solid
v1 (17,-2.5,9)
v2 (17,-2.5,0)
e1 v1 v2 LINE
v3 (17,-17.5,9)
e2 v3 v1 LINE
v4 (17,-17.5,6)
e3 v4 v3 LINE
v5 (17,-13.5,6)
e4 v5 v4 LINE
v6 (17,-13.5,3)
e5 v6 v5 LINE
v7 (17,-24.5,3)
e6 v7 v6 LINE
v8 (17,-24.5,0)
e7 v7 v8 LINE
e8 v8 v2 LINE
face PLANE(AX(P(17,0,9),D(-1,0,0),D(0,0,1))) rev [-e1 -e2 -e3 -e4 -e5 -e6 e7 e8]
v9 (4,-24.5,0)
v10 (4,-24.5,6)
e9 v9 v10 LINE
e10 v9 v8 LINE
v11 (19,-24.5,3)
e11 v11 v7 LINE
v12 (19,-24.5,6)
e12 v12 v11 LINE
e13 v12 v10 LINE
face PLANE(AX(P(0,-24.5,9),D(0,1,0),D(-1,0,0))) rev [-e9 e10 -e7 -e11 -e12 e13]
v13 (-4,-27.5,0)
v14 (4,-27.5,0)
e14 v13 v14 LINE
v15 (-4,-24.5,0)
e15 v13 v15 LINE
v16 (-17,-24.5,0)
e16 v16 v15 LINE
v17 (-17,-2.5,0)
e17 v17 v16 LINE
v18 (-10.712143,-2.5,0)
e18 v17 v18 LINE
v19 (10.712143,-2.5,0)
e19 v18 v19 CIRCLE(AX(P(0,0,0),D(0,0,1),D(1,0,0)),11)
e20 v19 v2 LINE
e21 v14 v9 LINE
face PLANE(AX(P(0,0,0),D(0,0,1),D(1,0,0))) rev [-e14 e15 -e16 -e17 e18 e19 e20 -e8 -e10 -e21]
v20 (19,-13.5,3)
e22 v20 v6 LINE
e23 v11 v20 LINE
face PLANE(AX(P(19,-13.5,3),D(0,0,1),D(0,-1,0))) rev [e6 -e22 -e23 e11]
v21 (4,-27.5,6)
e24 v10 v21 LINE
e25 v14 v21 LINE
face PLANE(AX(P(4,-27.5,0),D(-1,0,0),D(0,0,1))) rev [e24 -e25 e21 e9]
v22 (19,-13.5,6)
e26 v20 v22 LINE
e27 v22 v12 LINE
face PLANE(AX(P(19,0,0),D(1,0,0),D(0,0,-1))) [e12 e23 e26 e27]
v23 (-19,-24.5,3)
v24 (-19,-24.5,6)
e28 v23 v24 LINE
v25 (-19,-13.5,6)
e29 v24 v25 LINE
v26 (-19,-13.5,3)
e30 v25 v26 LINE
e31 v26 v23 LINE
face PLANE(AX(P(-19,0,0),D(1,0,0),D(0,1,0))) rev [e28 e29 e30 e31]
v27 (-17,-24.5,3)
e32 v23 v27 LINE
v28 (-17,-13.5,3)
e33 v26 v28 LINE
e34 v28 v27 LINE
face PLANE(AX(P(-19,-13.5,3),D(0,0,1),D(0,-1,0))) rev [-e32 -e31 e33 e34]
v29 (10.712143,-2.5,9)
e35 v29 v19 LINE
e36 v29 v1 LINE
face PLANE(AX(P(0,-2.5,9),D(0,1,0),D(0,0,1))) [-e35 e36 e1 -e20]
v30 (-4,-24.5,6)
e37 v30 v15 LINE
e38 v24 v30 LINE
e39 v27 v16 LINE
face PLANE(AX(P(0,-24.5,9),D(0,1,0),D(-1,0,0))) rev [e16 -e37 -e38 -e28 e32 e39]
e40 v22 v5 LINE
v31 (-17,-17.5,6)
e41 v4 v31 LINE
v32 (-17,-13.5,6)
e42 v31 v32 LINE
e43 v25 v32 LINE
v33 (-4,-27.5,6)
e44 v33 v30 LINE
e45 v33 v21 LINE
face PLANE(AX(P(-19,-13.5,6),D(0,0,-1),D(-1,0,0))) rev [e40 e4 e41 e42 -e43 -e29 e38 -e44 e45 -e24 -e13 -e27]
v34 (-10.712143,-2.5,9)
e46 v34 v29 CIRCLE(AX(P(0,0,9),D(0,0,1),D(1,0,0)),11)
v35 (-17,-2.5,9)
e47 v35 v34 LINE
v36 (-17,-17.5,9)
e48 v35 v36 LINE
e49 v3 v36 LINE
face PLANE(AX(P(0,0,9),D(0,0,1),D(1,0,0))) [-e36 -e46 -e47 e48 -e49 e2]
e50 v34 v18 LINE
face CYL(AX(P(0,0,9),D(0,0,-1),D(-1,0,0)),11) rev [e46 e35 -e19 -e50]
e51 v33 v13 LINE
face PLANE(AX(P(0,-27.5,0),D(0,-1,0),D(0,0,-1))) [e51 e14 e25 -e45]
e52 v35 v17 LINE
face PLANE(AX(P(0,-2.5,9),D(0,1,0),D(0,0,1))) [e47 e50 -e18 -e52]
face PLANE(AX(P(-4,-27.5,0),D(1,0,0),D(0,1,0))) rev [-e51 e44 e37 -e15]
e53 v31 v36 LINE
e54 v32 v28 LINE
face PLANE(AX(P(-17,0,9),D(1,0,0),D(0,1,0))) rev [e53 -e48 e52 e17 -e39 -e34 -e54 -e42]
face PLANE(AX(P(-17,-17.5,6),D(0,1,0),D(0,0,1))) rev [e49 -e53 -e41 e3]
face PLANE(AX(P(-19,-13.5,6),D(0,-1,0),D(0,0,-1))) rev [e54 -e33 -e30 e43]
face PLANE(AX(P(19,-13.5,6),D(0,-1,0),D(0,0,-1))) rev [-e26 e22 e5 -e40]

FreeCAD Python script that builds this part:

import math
import FreeCAD as App
import Part
import Sketcher
from FreeCAD import Vector

doc = App.newDocument("Part")
body = doc.addObject("PartDesign::Body", "Body")

sketch1 = body.newObject("Sketcher::SketchObject", "Sketch")
sketch1.AttachmentSupport = (doc.getObject("XY_Plane"), [""])
sketch1.MapMode = "FlatFace"
sketch1.addGeometry([
    Part.LineSegment(Vector(-11, -2, 0), Vector(-17, -2, 0)),
    Part.LineSegment(Vector(-17, -2, 0), Vector(-17, -24, 0)),
    Part.LineSegment(Vector(-17, -24, 0), Vector(17, -24, 0)),
    Part.LineSegment(Vector(17, -24, 0), Vector(17, -2, 0)),
    Part.LineSegment(Vector(17, -2, 0), Vector(11, -2, 0)),
    Part.ArcOfCircle(Part.Circle(Vector(0, 0, 0), Vector(0, 0, 1), 11), math.radians(-167), math.radians(-13)),
], False)
sketch1.addConstraint([
    Sketcher.Constraint("Coincident", 0, 2, 1, 1),
    Sketcher.Constraint("Coincident", 1, 2, 2, 1),
    Sketcher.Constraint("Coincident", 2, 2, 3, 1),
    Sketcher.Constraint("Coincident", 3, 2, 4, 1),
    Sketcher.Constraint("Coincident", 4, 2, 5, 2),
    Sketcher.Constraint("Coincident", 5, 1, 0, 1),
    Sketcher.Constraint("Horizontal", 0),
    Sketcher.Constraint("Vertical", 1),
    Sketcher.Constraint("Horizontal", 2),
    Sketcher.Constraint("Vertical", 3),
    Sketcher.Constraint("Horizontal", 4),
    Sketcher.Constraint("Coincident", 5, 3, -1, 1),
    Sketcher.Constraint("Symmetric", 0, 2, 3, 2, -2),
    Sketcher.Constraint("Radius", 5, 11.0),
    Sketcher.Constraint("DistanceX", 2, 1, 2, 2, 34.0),
    Sketcher.Constraint("DistanceY", 1, 2, 1, 1, 22.0),
    Sketcher.Constraint("DistanceY", 0, 2, -1, 1, 2.5),
])
pad1 = body.newObject("PartDesign::Pad", "Pad")
pad1.Profile = sketch1
pad1.Length = 9

sketch2 = body.newObject("Sketcher::SketchObject", "Sketch001")
sketch2.AttachmentSupport = (doc.getObject("XZ_Plane"), [""])
sketch2.MapMode = "FlatFace"
sketch2.AttachmentOffset = App.Placement(Vector(0, 0, 24.5), App.Rotation())
sketch2.addGeometry([
    Part.LineSegment(Vector(-4, 9, 0), Vector(-4, 0, 0)),
    Part.LineSegment(Vector(-4, 0, 0), Vector(4, 0, 0)),
    Part.LineSegment(Vector(4, 0, 0), Vector(4, 9, 0)),
    Part.LineSegment(Vector(4, 9, 0), Vector(-4, 9, 0)),
], False)
sketch2.addConstraint([
    Sketcher.Constraint("Coincident", 0, 2, 1, 1),
    Sketcher.Constraint("Coincident", 1, 2, 2, 1),
    Sketcher.Constraint("Coincident", 2, 2, 3, 1),
    Sketcher.Constraint("Coincident", 3, 2, 0, 1),
    Sketcher.Constraint("Vertical", 0),
    Sketcher.Constraint("Horizontal", 1),
    Sketcher.Constraint("Vertical", 2),
    Sketcher.Constraint("Horizontal", 3),
    Sketcher.Constraint("Symmetric", 0, 2, 1, 2, -1, 1),
    Sketcher.Constraint("DistanceX", 1, 1, 1, 2, 8.0),
    Sketcher.Constraint("DistanceY", 0, 2, 0, 1, 9.0),
])
pad2 = body.newObject("PartDesign::Pad", "Pad001")
pad2.Profile = sketch2
pad2.Length = 3

sketch3 = body.newObject("Sketcher::SketchObject", "Sketch002")
sketch3.AttachmentSupport = (doc.getObject("YZ_Plane"), [""])
sketch3.MapMode = "FlatFace"
sketch3.AttachmentOffset = App.Placement(Vector(0, 0, -17), App.Rotation())
sketch3.addGeometry([
    Part.LineSegment(Vector(-13.5, 3, 0), Vector(-24.5, 3, 0)),
    Part.LineSegment(Vector(-24.5, 3, 0), Vector(-24.5, 6, 0)),
    Part.LineSegment(Vector(-24.5, 6, 0), Vector(-13.5, 6, 0)),
    Part.LineSegment(Vector(-13.5, 6, 0), Vector(-13.5, 3, 0)),
], False)
sketch3.addConstraint([
    Sketcher.Constraint("Coincident", 0, 2, 1, 1),
    Sketcher.Constraint("Coincident", 1, 2, 2, 1),
    Sketcher.Constraint("Coincident", 2, 2, 3, 1),
    Sketcher.Constraint("Coincident", 3, 2, 0, 1),
    Sketcher.Constraint("Horizontal", 0),
    Sketcher.Constraint("Vertical", 1),
    Sketcher.Constraint("Horizontal", 2),
    Sketcher.Constraint("Vertical", 3),
    Sketcher.Constraint("DistanceX", 0, 2, 0, 1, 11.0),
    Sketcher.Constraint("DistanceY", 1, 1, 1, 2, 3.0),
    Sketcher.Constraint("DistanceY", -1, 1, 0, 2, 3.0),
    Sketcher.Constraint("DistanceX", 0, 2, -1, 1, 24.5),
])
pad3 = body.newObject("PartDesign::Pad", "Pad002")
pad3.Profile = sketch3
pad3.Length = 2
pad3.Reversed = True

sketch4 = body.newObject("Sketcher::SketchObject", "Sketch003")
sketch4.AttachmentSupport = (doc.getObject("YZ_Plane"), [""])
sketch4.MapMode = "FlatFace"
sketch4.AttachmentOffset = App.Placement(Vector(0, 0, 17), App.Rotation())
sketch4.addGeometry([
    Part.LineSegment(Vector(-13.5, 6, 0), Vector(-24.5, 6, 0)),
    Part.LineSegment(Vector(-24.5, 6, 0), Vector(-24.5, 3, 0)),
    Part.LineSegment(Vector(-24.5, 3, 0), Vector(-13.5, 3, 0)),
    Part.LineSegment(Vector(-13.5, 3, 0), Vector(-13.5, 6, 0)),
], False)
sketch4.addConstraint([
    Sketcher.Constraint("Coincident", 0, 2, 1, 1),
    Sketcher.Constraint("Coincident", 1, 2, 2, 1),
    Sketcher.Constraint("Coincident", 2, 2, 3, 1),
    Sketcher.Constraint("Coincident", 3, 2, 0, 1),
    Sketcher.Constraint("Horizontal", 0),
    Sketcher.Constraint("Vertical", 1),
    Sketcher.Constraint("Horizontal", 2),
    Sketcher.Constraint("Vertical", 3),
    Sketcher.Constraint("DistanceX", 0, 2, 0, 1, 11.0),
    Sketcher.Constraint("DistanceY", 1, 2, 1, 1, 3.0),
    Sketcher.Constraint("DistanceY", -1, 1, 0, 2, 6.0),
    Sketcher.Constraint("DistanceX", 0, 2, -1, 1, 24.5),
])
pad4 = body.newObject("PartDesign::Pad", "Pad003")
pad4.Profile = sketch4
pad4.Length = 2

sketch5 = body.newObject("Sketcher::SketchObject", "Sketch004")
sketch5.AttachmentSupport = (doc.getObject("XY_Plane"), [""])
sketch5.MapMode = "FlatFace"
sketch5.AttachmentOffset = App.Placement(Vector(0, 0, 9), App.Rotation())
sketch5.addGeometry([
    Part.LineSegment(Vector(-17, -18, 0), Vector(-17, -28, 0)),
    Part.LineSegment(Vector(-17, -28, 0), Vector(17, -28, 0)),
    Part.LineSegment(Vector(17, -28, 0), Vector(17, -18, 0)),
    Part.LineSegment(Vector(17, -18, 0), Vector(-17, -18, 0)),
], False)
sketch5.addConstraint([
    Sketcher.Constraint("Coincident", 0, 2, 1, 1),
    Sketcher.Constraint("Coincident", 1, 2, 2, 1),
    Sketcher.Constraint("Coincident", 2, 2, 3, 1),
    Sketcher.Constraint("Coincident", 3, 2, 0, 1),
    Sketcher.Constraint("Vertical", 0),
    Sketcher.Constraint("Horizontal", 1),
    Sketcher.Constraint("Vertical", 2),
    Sketcher.Constraint("Horizontal", 3),
    Sketcher.Constraint("DistanceX", 1, 1, 1, 2, 34.0),
    Sketcher.Constraint("DistanceY", 0, 2, 0, 1, 10.0),
    Sketcher.Constraint("DistanceX", 0, 2, -1, 1, 17.0),
    Sketcher.Constraint("DistanceY", 0, 2, -1, 1, 27.5),
])
pocket1 = body.newObject("PartDesign::Pocket", "Pocket")
pocket1.Profile = sketch5
pocket1.Length = 3

doc.recompute()
